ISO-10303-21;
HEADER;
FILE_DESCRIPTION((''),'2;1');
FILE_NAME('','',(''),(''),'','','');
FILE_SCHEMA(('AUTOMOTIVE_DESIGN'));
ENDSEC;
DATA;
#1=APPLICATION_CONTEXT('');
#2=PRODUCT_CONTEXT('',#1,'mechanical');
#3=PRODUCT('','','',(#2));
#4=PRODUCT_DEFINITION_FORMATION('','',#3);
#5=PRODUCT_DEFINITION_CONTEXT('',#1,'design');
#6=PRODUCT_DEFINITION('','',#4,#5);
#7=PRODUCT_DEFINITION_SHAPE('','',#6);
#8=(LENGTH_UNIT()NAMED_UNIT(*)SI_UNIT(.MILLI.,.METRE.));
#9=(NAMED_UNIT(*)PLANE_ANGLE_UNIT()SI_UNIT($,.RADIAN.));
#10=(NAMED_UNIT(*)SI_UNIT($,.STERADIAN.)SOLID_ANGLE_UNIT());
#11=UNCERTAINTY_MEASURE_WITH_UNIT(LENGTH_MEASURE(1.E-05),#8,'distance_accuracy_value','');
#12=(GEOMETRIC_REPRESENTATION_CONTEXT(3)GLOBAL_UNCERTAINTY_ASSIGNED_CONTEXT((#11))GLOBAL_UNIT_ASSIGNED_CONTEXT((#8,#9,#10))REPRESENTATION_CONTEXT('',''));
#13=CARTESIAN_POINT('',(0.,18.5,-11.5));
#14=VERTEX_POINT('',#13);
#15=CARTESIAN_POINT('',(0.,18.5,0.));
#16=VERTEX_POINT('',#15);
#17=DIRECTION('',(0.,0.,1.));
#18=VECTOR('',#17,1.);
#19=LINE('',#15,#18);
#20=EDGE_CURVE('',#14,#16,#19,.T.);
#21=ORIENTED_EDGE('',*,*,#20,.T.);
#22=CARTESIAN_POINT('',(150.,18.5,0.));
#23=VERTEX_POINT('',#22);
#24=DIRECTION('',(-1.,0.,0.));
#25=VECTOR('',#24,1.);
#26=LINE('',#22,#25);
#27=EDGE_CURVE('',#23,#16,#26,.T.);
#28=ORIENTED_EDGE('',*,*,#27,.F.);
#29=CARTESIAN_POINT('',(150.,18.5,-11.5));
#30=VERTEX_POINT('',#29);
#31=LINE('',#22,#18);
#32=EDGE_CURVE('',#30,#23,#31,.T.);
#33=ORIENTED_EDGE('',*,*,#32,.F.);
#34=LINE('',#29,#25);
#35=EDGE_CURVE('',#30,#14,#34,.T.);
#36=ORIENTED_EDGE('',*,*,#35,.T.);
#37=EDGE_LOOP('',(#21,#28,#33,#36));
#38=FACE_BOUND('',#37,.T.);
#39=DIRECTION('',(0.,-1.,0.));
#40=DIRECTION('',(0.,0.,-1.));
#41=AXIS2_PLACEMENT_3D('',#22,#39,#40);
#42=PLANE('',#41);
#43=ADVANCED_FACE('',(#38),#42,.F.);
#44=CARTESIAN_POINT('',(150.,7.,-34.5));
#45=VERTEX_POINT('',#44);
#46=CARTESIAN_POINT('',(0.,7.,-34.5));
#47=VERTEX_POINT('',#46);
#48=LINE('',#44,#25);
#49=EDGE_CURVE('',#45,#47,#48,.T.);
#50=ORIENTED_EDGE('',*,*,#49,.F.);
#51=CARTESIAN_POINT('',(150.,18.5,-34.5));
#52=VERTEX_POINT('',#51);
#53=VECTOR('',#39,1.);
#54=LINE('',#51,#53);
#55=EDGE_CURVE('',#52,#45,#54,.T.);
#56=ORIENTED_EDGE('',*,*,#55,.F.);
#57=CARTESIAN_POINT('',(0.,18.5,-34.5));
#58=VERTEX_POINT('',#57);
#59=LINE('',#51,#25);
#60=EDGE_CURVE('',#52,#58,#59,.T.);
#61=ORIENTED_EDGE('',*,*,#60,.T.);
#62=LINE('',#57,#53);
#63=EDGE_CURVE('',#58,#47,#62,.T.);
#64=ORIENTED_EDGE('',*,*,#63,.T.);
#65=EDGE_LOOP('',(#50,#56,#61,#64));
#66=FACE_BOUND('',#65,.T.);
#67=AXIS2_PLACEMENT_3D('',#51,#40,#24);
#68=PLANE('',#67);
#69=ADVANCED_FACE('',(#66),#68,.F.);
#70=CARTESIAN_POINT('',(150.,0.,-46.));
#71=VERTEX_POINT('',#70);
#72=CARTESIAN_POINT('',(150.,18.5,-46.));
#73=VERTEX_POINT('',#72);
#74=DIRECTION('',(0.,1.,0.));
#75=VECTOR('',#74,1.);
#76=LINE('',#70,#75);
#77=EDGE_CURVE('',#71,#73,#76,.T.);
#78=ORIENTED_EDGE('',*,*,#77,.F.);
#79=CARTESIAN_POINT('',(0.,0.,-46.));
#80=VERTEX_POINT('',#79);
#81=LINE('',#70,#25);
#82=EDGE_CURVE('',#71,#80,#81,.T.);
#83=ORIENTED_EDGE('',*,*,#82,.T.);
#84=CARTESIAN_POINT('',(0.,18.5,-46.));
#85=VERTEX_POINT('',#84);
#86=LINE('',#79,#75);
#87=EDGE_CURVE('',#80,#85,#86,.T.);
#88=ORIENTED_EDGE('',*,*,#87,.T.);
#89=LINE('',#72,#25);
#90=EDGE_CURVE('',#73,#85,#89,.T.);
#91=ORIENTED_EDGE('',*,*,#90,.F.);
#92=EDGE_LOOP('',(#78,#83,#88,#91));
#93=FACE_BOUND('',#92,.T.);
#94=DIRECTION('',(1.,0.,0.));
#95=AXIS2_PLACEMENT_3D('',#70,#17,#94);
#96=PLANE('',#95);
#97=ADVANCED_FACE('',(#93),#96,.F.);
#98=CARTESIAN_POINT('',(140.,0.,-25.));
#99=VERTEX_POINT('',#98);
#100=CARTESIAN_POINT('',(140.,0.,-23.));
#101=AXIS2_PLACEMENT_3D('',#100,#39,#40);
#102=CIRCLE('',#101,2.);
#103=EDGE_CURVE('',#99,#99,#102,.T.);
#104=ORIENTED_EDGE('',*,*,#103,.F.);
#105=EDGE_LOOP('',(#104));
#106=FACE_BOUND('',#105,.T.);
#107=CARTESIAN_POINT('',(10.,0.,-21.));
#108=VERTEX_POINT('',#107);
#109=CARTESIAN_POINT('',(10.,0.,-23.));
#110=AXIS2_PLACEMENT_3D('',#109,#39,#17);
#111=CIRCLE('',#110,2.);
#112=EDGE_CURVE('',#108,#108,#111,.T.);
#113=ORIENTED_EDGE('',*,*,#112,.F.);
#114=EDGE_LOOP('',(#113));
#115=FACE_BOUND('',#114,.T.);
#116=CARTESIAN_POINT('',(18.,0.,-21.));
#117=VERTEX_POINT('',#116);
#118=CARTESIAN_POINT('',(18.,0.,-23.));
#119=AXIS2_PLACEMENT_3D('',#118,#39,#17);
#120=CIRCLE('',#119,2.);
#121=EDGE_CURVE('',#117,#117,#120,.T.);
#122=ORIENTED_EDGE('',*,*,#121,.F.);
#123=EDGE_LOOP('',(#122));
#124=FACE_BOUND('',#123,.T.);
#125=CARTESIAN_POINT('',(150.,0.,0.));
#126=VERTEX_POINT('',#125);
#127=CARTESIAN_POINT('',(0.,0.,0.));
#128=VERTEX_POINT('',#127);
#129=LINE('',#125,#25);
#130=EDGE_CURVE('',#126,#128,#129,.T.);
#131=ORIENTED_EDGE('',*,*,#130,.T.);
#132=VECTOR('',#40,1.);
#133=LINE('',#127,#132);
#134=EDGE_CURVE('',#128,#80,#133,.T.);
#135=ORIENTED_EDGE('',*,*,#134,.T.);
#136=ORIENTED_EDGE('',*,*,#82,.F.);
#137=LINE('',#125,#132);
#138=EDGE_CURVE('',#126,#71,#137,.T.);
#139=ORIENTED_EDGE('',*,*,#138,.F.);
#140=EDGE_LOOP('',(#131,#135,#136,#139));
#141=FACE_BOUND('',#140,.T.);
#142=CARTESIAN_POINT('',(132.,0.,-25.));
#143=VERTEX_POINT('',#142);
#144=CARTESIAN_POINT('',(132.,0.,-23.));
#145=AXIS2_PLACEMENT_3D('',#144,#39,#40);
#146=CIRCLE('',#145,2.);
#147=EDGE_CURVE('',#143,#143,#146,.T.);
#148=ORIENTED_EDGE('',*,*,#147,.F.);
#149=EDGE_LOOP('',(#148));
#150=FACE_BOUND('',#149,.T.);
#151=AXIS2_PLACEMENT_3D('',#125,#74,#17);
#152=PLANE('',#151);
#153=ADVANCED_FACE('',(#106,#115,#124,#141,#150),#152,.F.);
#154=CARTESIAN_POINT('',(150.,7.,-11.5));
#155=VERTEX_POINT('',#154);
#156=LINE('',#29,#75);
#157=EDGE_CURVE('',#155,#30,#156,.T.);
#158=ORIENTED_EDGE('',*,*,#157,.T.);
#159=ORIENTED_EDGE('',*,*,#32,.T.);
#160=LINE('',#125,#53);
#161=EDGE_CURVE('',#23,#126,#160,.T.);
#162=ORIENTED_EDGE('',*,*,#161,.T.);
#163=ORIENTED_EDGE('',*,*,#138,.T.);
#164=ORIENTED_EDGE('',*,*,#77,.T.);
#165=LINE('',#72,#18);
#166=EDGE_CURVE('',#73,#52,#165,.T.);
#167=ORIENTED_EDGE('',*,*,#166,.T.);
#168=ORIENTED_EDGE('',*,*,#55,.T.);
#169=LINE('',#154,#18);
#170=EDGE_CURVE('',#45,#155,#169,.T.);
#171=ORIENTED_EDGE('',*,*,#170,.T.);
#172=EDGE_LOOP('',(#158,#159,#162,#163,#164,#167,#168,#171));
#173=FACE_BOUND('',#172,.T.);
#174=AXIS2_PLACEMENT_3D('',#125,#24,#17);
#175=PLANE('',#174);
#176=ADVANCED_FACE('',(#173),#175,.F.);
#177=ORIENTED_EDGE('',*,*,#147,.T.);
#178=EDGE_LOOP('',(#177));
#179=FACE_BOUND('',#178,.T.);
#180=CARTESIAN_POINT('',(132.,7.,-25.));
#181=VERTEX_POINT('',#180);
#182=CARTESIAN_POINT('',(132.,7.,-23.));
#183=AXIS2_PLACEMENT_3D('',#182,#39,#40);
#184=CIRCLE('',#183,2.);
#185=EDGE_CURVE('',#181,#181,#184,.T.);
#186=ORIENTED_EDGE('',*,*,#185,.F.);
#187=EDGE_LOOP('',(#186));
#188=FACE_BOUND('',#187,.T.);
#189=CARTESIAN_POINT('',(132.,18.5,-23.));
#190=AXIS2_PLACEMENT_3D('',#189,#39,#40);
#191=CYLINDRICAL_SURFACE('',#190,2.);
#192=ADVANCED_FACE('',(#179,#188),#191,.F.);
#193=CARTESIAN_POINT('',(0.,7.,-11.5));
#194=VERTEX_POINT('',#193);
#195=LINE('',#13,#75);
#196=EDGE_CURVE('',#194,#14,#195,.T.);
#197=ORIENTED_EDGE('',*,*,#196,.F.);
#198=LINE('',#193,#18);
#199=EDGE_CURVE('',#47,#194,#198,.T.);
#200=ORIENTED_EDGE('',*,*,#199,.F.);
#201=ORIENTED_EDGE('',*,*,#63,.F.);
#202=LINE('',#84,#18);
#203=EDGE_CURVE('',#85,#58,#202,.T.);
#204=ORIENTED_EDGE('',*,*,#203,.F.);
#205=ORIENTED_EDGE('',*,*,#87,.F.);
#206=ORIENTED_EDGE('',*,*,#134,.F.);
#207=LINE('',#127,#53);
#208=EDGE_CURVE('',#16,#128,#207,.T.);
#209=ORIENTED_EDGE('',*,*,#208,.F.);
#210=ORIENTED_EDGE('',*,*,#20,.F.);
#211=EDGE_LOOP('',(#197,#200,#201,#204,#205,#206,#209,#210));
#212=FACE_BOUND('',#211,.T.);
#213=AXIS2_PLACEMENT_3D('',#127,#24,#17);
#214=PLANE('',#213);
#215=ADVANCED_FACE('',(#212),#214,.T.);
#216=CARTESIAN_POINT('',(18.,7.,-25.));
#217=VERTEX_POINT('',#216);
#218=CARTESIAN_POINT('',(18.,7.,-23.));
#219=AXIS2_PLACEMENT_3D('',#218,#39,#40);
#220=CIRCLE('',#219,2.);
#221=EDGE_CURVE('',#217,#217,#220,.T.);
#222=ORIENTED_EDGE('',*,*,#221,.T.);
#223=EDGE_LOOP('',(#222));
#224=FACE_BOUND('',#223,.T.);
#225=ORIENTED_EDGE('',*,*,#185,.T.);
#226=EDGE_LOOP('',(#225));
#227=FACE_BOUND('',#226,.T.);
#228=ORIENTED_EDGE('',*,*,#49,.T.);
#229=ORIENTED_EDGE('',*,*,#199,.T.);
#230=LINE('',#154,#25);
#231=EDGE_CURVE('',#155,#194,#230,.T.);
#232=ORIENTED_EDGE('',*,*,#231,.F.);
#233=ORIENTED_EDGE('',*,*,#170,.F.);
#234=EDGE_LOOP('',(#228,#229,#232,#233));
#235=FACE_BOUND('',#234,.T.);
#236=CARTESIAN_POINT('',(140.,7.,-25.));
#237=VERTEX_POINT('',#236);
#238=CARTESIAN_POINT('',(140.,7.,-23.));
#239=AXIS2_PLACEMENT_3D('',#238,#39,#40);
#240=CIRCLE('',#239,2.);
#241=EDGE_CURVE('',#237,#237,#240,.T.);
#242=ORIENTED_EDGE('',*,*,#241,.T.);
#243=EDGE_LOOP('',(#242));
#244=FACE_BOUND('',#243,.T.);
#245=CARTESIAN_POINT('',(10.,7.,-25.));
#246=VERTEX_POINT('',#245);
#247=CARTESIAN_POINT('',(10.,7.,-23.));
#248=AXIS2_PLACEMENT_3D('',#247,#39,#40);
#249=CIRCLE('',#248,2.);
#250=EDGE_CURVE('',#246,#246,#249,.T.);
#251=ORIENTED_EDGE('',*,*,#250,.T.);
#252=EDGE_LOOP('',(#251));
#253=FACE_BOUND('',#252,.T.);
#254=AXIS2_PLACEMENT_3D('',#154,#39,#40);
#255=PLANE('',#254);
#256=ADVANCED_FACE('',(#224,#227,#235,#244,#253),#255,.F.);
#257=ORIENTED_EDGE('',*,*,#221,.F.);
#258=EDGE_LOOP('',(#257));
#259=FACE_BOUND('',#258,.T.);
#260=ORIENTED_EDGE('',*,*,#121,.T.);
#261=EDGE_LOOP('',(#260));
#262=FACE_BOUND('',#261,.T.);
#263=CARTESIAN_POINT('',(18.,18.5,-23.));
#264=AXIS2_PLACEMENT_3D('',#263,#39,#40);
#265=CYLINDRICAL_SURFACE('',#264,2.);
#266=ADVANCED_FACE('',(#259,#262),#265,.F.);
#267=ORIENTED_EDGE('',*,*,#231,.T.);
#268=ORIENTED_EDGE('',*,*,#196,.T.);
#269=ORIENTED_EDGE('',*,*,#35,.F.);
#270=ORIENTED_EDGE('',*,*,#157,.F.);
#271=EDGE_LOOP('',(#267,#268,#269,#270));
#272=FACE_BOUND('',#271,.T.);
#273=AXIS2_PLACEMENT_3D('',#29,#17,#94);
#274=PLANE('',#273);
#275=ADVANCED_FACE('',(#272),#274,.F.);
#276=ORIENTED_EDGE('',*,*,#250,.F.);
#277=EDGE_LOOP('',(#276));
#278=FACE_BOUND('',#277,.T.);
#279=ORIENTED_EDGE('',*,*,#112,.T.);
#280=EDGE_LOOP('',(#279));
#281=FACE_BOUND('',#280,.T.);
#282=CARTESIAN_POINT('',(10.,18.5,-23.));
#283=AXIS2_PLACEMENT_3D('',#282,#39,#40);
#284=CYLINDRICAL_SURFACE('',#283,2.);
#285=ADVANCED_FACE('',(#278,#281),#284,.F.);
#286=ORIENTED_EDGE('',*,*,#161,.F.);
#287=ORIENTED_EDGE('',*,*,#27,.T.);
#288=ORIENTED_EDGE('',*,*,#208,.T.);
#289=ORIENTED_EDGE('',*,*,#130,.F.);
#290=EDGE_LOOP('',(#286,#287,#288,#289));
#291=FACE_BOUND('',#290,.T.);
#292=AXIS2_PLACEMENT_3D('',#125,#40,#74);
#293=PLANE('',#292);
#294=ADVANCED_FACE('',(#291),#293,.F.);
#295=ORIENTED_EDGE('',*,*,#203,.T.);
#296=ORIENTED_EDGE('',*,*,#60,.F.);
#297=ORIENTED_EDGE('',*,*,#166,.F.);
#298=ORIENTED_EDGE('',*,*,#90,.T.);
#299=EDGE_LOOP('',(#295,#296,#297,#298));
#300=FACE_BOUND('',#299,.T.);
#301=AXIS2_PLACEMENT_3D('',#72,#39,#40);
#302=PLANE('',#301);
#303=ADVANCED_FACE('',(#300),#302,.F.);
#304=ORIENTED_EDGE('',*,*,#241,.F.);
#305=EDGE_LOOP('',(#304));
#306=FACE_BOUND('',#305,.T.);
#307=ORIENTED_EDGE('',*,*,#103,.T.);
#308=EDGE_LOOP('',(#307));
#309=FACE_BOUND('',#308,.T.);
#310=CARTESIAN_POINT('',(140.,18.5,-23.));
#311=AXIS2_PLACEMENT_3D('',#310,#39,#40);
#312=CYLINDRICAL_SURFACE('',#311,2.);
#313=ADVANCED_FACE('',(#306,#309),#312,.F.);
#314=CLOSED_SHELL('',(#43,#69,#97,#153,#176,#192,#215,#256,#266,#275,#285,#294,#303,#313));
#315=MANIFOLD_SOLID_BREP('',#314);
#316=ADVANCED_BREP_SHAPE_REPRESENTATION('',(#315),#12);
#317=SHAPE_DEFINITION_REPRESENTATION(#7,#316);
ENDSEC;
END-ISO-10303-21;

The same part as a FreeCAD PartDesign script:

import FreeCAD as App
import Part
import Sketcher
Q = App.Units.Quantity


def add_polygon(sketch, points):
    """Adds a closed chain of lines whose ends are joined by coincident constraints."""
    first, n = sketch.GeometryCount, len(points)
    for a, b in zip(points, points[1:] + points[:1]):
        sketch.addGeometry(Part.LineSegment(App.Vector(*a, 0), App.Vector(*b, 0)), False)
    for i in range(n):
        sketch.addConstraint(Sketcher.Constraint("Coincident", first + i, 2, first + (i + 1) % n, 1))

doc = App.newDocument("Part")
body = doc.addObject("PartDesign::Body", "Body")

# Sketch on YZ plane
sketch1 = doc.addObject("Sketcher::SketchObject", "Sketch")
body.addObject(sketch1)
sketch1.AttachmentSupport = (doc.YZ_Plane, [""])
sketch1.MapMode = "FlatFace"
add_polygon(sketch1, [(18.5, -11.5), (18.5, 0), (0, 0), (0, -46), (18.5, -46), (18.5, -34.5), (7, -34.5), (7, -11.5)])  # lines 0-7
sketch1.addConstraint(Sketcher.Constraint("Vertical", 0))
sketch1.addConstraint(Sketcher.Constraint("Horizontal", 1))
sketch1.addConstraint(Sketcher.Constraint("Vertical", 2))
sketch1.addConstraint(Sketcher.Constraint("Horizontal", 3))
sketch1.addConstraint(Sketcher.Constraint("Vertical", 4))
sketch1.addConstraint(Sketcher.Constraint("Horizontal", 5))
sketch1.addConstraint(Sketcher.Constraint("Vertical", 6))
sketch1.addConstraint(Sketcher.Constraint("Horizontal", 7))
sketch1.addConstraint(Sketcher.Constraint("Coincident", 1, 2, -1, 1))
sketch1.addConstraint(Sketcher.Constraint("Vertical", 0, 2, 3, 2))
sketch1.addConstraint(Sketcher.Constraint("Equal", 7, 0))
sketch1.addConstraint(Sketcher.Constraint("Equal", 0, 4))
sketch1.addConstraint(Sketcher.Constraint("DistanceY", 2, 2, 2, 1, Q("46 mm")))
sketch1.addConstraint(Sketcher.Constraint("DistanceY", 6, 1, 6, 2, Q("23 mm")))
sketch1.addConstraint(Sketcher.Constraint("DistanceX", 1, 2, 1, 1, Q("18.5 mm")))
pad1 = doc.addObject("PartDesign::Pad", "Pad")
body.addObject(pad1)
pad1.Profile = sketch1
pad1.Length = 150

# Sketch on XZ plane
sketch2 = doc.addObject("Sketcher::SketchObject", "Sketch001")
body.addObject(sketch2)
sketch2.AttachmentSupport = (doc.XZ_Plane, [""])
sketch2.MapMode = "FlatFace"
sketch2.addGeometry(Part.Circle(App.Vector(140, -23, 0), App.Vector(0, 0, 1), 2), False)
sketch2.addGeometry(Part.Circle(App.Vector(10, -23, 0), App.Vector(0, 0, 1), 2), False)
sketch2.addGeometry(Part.Circle(App.Vector(132, -23, 0), App.Vector(0, 0, 1), 2), False)
sketch2.addGeometry(Part.Circle(App.Vector(18, -23, 0), App.Vector(0, 0, 1), 2), False)
sketch2.addConstraint(Sketcher.Constraint("Equal", 0, 1))
sketch2.addConstraint(Sketcher.Constraint("Equal", 1, 2))
sketch2.addConstraint(Sketcher.Constraint("Equal", 2, 3))
sketch2.addConstraint(Sketcher.Constraint("Horizontal", 0, 3, 1, 3))
sketch2.addConstraint(Sketcher.Constraint("Horizontal", 1, 3, 2, 3))
sketch2.addConstraint(Sketcher.Constraint("Horizontal", 2, 3, 3, 3))
sketch2.addConstraint(Sketcher.Constraint("Diameter", 0, Q("4 mm")))
sketch2.addConstraint(Sketcher.Constraint("DistanceX", -1, 1, 0, 3, Q("140 mm")))
sketch2.addConstraint(Sketcher.Constraint("DistanceY", 0, 3, -1, 1, Q("23 mm")))
sketch2.addConstraint(Sketcher.Constraint("DistanceX", -1, 1, 1, 3, Q("10 mm")))
sketch2.addConstraint(Sketcher.Constraint("DistanceX", -1, 1, 2, 3, Q("132 mm")))
sketch2.addConstraint(Sketcher.Constraint("DistanceX", -1, 1, 3, 3, Q("18 mm")))
pocket1 = doc.addObject("PartDesign::Pocket", "Pocket")
body.addObject(pocket1)
pocket1.Profile = sketch2
pocket1.Type = "ThroughAll"

doc.recompute()
